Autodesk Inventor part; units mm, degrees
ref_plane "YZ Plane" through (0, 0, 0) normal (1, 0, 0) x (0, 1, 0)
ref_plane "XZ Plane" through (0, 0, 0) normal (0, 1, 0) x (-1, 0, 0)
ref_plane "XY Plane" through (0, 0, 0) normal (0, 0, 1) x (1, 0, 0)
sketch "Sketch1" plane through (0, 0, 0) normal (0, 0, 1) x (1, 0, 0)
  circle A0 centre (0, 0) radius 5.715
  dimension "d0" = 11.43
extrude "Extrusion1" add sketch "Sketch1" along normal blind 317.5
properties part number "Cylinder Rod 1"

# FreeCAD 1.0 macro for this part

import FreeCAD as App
import Part
import Sketcher
from FreeCAD import Vector
Q = App.Units.Quantity

doc = App.newDocument("Part")
body = doc.addObject("PartDesign::Body", "Body")

# Sketch on XY plane
sketch1 = body.newObject("Sketcher::SketchObject", "Sketch")
sketch1.AttachmentSupport = (doc.getObject("XY_Plane"), [""])
sketch1.MapMode = "FlatFace"
sketch1.addGeometry(Part.Circle(Vector(0, 0, 0), Vector(0, 0, 1), 6), False)
sketch1.addConstraint([
    Sketcher.Constraint("Coincident", 0, 3, -1, 1),
    Sketcher.Constraint("Diameter", 0, Q("0.45 in")),
])
pad1 = body.newObject("PartDesign::Pad", "Pad")
pad1.Profile = sketch1
pad1.Length = Q("12.5 in")

doc.recompute()
